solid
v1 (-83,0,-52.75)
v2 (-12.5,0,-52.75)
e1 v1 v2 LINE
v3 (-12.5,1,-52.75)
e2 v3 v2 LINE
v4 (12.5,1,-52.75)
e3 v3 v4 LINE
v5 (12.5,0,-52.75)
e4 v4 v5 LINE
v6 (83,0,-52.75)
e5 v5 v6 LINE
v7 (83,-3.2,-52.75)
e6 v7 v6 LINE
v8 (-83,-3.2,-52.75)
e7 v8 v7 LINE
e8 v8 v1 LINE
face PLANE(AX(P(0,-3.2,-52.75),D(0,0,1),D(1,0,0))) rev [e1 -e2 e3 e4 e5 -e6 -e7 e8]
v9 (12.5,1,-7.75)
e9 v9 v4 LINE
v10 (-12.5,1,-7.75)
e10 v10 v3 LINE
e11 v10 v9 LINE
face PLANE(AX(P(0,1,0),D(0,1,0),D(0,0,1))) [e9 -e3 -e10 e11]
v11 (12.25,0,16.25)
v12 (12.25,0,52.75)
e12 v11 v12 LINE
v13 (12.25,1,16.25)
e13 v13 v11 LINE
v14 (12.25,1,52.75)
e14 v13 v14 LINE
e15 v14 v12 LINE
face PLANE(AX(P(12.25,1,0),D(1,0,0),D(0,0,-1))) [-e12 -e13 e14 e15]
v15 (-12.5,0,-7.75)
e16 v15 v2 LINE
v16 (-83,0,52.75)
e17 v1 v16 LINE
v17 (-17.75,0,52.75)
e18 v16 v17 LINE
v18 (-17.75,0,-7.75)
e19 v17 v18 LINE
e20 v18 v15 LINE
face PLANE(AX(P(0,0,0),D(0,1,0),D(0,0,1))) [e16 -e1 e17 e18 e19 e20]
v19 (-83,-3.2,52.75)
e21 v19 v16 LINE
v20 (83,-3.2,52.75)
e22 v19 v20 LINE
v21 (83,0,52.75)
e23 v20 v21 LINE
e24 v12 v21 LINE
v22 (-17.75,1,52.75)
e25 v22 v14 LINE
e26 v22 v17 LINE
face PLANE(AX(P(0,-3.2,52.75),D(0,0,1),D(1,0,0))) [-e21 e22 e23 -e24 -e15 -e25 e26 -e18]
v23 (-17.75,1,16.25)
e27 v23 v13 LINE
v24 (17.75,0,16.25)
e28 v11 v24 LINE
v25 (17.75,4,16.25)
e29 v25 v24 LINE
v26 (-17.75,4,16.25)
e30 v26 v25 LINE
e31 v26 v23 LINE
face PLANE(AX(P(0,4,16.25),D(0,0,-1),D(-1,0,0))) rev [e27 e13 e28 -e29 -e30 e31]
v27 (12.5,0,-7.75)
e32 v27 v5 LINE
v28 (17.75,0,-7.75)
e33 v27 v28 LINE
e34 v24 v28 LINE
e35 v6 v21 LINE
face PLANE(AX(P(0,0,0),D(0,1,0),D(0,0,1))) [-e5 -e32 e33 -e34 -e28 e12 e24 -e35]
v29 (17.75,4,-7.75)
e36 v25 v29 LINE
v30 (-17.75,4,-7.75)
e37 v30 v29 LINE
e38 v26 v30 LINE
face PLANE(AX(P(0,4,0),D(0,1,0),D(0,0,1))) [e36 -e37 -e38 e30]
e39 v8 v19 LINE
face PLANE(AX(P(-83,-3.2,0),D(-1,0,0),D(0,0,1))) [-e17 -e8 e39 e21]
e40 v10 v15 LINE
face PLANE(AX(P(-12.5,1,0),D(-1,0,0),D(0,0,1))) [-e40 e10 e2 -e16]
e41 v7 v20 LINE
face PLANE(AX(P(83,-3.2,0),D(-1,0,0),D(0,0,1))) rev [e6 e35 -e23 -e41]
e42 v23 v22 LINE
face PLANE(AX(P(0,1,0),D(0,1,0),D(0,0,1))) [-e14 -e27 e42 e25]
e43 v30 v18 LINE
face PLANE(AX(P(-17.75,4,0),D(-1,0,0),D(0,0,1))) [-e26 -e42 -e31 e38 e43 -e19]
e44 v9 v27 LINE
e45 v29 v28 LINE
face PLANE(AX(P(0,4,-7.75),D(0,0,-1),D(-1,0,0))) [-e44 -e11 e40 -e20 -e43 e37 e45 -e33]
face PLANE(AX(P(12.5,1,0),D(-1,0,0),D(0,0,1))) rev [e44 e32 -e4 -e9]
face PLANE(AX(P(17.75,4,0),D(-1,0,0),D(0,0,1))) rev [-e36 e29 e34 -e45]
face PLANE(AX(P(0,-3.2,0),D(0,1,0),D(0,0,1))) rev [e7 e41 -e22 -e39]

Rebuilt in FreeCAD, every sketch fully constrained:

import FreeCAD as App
import Part
import Sketcher
from FreeCAD import Vector


def add_polygon(sketch, points):
    """Adds a closed chain of lines whose ends are joined by coincident constraints."""
    first, n = sketch.GeometryCount, len(points)
    for a, b in zip(points, points[1:] + points[:1]):
        sketch.addGeometry(Part.LineSegment(App.Vector(*a, 0), App.Vector(*b, 0)), False)
    for i in range(n):
        sketch.addConstraint(Sketcher.Constraint("Coincident", first + i, 2, first + (i + 1) % n, 1))

doc = App.newDocument("Part")
body = doc.addObject("PartDesign::Body", "Body")

sketch1 = body.newObject("Sketcher::SketchObject", "Sketch")
sketch1.AttachmentSupport = (doc.getObject("XZ_Plane"), [""])
sketch1.MapMode = "FlatFace"
add_polygon(sketch1, [(-18, -8), (-18, 16), (18, 16), (18, -8)])
sketch1.addConstraint(Sketcher.Constraint("Vertical", 0))
sketch1.addConstraint(Sketcher.Constraint("Horizontal", 1))
sketch1.addConstraint(Sketcher.Constraint("Vertical", 2))
sketch1.addConstraint(Sketcher.Constraint("Horizontal", 3))
sketch1.addConstraint(Sketcher.Constraint("DistanceY", 0, 1, 0, 2, 24.0))
sketch1.addConstraint(Sketcher.Constraint("DistanceX", 1, 1, 1, 2, 35.5))
sketch1.addConstraint(Sketcher.Constraint("DistanceX", 0, 2, -1, 1, 17.75))
sketch1.addConstraint(Sketcher.Constraint("DistanceY", -1, 1, 0, 2, 16.25))
pad1 = body.newObject("PartDesign::Pad", "Pad")
pad1.Profile = sketch1
pad1.Length = 4
pad1.Reversed = True

sketch2 = body.newObject("Sketcher::SketchObject", "Sketch001")
sketch2.AttachmentSupport = (doc.getObject("XZ_Plane"), [""])
sketch2.MapMode = "FlatFace"
add_polygon(sketch2, [(-83, -53), (-83, 53), (83, 53), (83, -53)])
sketch2.addConstraint(Sketcher.Constraint("Vertical", 0))
sketch2.addConstraint(Sketcher.Constraint("Horizontal", 1))
sketch2.addConstraint(Sketcher.Constraint("Vertical", 2))
sketch2.addConstraint(Sketcher.Constraint("Horizontal", 3))
sketch2.addConstraint(Sketcher.Constraint("Symmetric", 0, 2, 2, 2, -1, 1))
sketch2.addConstraint(Sketcher.Constraint("DistanceX", 1, 1, 1, 2, 166.0))
sketch2.addConstraint(Sketcher.Constraint("DistanceY", 0, 1, 0, 2, 105.5))
pad2 = body.newObject("PartDesign::Pad", "Pad001")
pad2.Profile = sketch2
pad2.Length = 3.2

sketch3 = body.newObject("Sketcher::SketchObject", "Sketch002")
sketch3.AttachmentSupport = (doc.getObject("XZ_Plane"), [""])
sketch3.MapMode = "FlatFace"
add_polygon(sketch3, [(-12, -53), (-12, -8), (12, -8), (12, -53)])
add_polygon(sketch3, [(-18, 16), (-18, 53), (12, 53), (12, 16)])
sketch3.addConstraint(Sketcher.Constraint("Vertical", 0))
sketch3.addConstraint(Sketcher.Constraint("Horizontal", 1))
sketch3.addConstraint(Sketcher.Constraint("Vertical", 2))
sketch3.addConstraint(Sketcher.Constraint("Horizontal", 3))
sketch3.addConstraint(Sketcher.Constraint("Vertical", 4))
sketch3.addConstraint(Sketcher.Constraint("Horizontal", 5))
sketch3.addConstraint(Sketcher.Constraint("Vertical", 6))
sketch3.addConstraint(Sketcher.Constraint("Horizontal", 7))
sketch3.addConstraint(Sketcher.Constraint("DistanceX", 1, 1, 1, 2, 25.0))
sketch3.addConstraint(Sketcher.Constraint("DistanceX", 5, 1, 5, 2, 30.0))
sketch3.addConstraint(Sketcher.Constraint("DistanceY", 0, 1, 0, 2, 45.0))
sketch3.addConstraint(Sketcher.Constraint("DistanceY", 4, 1, 4, 2, 36.5))
sketch3.addConstraint(Sketcher.Constraint("DistanceY", 1, 2, 6, 2, 24.0))
sketch3.addConstraint(Sketcher.Constraint("DistanceX", 0, 2, -1, 1, 12.5))
sketch3.addConstraint(Sketcher.Constraint("DistanceY", 0, 2, -1, 1, 7.75))
sketch3.addConstraint(Sketcher.Constraint("DistanceX", 4, 2, -1, 1, 17.75))
pad3 = body.newObject("PartDesign::Pad", "Pad002")
pad3.Profile = sketch3
pad3.Length = 1
pad3.Reversed = True

doc.recompute()
